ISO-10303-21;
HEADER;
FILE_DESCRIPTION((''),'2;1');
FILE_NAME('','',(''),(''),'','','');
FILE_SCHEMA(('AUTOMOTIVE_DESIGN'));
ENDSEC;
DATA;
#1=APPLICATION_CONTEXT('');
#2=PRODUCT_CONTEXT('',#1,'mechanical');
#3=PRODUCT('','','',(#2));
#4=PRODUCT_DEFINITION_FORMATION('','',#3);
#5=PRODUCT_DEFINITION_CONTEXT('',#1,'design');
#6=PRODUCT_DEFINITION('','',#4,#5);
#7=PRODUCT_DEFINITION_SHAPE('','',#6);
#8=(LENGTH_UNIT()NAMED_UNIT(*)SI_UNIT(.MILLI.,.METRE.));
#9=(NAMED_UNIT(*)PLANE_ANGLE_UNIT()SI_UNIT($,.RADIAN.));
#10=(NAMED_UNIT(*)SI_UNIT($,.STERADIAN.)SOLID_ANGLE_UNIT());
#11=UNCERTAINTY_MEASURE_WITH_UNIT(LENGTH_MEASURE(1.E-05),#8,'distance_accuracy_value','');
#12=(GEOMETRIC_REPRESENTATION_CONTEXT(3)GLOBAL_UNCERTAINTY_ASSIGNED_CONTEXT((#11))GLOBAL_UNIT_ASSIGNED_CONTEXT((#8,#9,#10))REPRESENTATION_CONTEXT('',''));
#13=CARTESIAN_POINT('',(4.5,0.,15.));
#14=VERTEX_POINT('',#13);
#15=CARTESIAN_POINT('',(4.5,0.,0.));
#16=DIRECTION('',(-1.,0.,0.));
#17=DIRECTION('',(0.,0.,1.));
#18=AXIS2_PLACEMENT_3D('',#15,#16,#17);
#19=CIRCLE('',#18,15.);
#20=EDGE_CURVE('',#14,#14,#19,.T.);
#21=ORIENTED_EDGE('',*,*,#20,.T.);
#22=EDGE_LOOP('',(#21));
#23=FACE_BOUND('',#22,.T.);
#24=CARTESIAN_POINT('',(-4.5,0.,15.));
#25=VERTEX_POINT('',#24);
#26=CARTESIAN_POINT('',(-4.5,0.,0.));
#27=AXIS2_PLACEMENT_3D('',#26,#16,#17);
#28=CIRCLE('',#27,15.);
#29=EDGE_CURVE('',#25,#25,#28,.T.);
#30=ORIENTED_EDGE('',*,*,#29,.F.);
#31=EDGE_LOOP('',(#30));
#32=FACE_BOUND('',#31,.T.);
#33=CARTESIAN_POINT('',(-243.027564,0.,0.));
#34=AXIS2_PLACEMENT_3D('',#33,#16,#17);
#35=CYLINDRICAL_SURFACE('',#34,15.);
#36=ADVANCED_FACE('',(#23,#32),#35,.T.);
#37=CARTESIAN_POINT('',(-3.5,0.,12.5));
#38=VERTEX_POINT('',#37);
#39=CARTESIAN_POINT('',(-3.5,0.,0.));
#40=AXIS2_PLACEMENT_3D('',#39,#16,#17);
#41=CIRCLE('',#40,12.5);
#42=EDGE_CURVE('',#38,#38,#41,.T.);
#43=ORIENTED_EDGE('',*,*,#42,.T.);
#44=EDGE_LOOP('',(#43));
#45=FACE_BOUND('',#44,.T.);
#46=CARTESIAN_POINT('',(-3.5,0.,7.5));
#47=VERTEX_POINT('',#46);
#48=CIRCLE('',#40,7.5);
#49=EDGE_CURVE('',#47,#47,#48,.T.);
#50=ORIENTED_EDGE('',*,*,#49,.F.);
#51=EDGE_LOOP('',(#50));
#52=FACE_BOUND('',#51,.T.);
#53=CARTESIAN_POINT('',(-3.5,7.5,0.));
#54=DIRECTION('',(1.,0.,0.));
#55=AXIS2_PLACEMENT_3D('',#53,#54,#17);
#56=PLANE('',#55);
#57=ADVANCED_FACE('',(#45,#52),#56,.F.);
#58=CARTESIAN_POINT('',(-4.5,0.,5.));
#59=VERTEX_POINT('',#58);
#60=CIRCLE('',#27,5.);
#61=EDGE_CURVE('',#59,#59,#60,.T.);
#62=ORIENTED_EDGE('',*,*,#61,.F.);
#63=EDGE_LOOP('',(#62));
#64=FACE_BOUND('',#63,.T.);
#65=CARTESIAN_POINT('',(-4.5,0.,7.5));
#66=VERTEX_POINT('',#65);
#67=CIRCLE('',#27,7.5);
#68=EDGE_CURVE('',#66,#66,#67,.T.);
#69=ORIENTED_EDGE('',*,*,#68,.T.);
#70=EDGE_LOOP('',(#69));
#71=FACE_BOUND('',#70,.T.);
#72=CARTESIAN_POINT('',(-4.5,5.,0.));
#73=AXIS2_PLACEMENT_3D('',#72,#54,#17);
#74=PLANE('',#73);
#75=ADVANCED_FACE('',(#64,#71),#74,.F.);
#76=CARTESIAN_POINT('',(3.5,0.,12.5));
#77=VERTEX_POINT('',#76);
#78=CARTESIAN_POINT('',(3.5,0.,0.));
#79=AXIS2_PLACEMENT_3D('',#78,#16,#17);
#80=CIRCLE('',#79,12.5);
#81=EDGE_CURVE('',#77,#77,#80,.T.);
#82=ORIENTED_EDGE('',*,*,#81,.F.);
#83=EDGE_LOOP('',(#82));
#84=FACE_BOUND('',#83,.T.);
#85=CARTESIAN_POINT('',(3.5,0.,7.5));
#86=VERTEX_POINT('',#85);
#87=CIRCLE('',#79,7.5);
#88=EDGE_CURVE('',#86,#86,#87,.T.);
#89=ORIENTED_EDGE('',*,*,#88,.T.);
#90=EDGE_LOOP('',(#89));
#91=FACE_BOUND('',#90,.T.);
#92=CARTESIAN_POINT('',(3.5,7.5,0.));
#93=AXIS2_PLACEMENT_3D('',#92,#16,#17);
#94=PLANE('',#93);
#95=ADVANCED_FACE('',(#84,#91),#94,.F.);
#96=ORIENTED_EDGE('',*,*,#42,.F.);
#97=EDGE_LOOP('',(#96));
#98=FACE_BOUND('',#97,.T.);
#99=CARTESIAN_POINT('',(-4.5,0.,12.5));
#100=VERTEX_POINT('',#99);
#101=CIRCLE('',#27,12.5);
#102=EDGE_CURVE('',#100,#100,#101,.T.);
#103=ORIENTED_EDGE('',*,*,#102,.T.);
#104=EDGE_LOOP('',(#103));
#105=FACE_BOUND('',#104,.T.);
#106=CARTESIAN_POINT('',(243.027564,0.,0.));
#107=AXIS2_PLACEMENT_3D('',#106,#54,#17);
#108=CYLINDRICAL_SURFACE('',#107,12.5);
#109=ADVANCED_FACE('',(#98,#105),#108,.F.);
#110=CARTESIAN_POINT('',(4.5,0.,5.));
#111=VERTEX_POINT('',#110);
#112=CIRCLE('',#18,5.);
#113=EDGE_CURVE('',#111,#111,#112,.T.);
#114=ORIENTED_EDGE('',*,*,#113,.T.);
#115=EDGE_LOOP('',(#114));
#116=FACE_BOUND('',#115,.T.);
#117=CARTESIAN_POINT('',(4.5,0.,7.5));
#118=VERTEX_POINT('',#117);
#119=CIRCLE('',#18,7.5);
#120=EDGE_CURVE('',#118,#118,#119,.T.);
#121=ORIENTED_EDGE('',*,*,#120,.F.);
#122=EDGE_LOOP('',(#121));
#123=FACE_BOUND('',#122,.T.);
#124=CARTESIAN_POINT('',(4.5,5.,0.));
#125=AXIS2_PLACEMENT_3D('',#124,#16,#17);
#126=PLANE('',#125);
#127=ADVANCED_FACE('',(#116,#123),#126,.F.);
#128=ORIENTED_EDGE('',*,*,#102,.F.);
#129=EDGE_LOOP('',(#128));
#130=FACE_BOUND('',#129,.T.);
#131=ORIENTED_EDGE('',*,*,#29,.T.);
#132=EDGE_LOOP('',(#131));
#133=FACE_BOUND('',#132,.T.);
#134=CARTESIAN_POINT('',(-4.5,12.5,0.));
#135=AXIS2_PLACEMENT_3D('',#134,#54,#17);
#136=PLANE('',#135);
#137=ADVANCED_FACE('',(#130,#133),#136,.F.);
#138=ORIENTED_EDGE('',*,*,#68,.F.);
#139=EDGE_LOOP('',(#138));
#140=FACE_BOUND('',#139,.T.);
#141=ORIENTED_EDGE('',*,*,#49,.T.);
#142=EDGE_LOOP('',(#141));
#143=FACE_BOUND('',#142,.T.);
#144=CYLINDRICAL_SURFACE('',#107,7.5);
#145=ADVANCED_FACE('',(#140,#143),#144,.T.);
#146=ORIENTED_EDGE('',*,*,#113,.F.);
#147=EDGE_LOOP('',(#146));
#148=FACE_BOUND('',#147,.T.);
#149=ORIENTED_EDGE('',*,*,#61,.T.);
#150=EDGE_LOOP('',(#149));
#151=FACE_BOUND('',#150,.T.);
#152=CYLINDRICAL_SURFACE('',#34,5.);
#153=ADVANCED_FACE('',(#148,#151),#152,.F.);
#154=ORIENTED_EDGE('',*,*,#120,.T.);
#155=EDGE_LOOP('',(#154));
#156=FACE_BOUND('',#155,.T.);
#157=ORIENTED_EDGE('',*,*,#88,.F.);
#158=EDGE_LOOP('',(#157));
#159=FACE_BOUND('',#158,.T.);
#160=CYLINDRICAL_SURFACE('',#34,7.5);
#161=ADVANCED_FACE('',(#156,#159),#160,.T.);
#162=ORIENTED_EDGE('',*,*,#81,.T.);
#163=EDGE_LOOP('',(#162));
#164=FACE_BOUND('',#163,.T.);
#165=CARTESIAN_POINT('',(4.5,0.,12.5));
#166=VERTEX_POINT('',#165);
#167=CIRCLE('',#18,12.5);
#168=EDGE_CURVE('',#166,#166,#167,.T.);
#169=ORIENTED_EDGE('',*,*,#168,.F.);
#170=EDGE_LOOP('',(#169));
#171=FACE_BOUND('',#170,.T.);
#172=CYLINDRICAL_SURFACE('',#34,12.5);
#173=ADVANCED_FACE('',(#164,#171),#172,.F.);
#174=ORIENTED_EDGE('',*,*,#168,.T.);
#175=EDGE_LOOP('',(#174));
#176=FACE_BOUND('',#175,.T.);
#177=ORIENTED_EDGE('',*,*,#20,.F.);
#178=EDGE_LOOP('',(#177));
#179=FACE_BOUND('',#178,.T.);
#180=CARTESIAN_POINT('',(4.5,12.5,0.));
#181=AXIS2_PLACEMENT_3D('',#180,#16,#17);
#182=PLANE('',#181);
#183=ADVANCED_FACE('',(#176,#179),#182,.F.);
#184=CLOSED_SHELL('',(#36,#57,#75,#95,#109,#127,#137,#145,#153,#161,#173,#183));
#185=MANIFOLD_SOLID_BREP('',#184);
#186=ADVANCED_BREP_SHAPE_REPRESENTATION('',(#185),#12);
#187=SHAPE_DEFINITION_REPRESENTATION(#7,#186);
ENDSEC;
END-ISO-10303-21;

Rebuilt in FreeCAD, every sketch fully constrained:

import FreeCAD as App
import Part
import Sketcher
from FreeCAD import Vector

doc = App.newDocument("Part")
body = doc.addObject("PartDesign::Body", "Body")

sketch1 = doc.addObject("Sketcher::SketchObject", "Sketch")
body.addObject(sketch1)
sketch1.AttachmentSupport = (doc.XY_Plane, [""])
sketch1.MapMode = "FlatFace"
sketch1.addGeometry([
    Part.LineSegment(Vector(0, 5, 0), Vector(4.5, 5, 0)),
    Part.LineSegment(Vector(4.5, 5, 0), Vector(4.5, 7.5, 0)),
    Part.LineSegment(Vector(4.5, 7.5, 0), Vector(3.5, 7.5, 0)),
    Part.LineSegment(Vector(3.5, 7.5, 0), Vector(3.5, 12.5, 0)),
    Part.LineSegment(Vector(3.5, 12.5, 0), Vector(4.5, 12.5, 0)),
    Part.LineSegment(Vector(4.5, 12.5, 0), Vector(4.5, 15, 0)),
    Part.LineSegment(Vector(4.5, 15, 0), Vector(0, 15, 0)),
    Part.LineSegment(Vector(0, 15, 0), Vector(0, 5, 0)),
], False)
sketch1.addConstraint([
    Sketcher.Constraint("Coincident", 0, 2, 1, 1),
    Sketcher.Constraint("Coincident", 1, 2, 2, 1),
    Sketcher.Constraint("Coincident", 2, 2, 3, 1),
    Sketcher.Constraint("Coincident", 3, 2, 4, 1),
    Sketcher.Constraint("Coincident", 4, 2, 5, 1),
    Sketcher.Constraint("Coincident", 5, 2, 6, 1),
    Sketcher.Constraint("Coincident", 6, 2, 7, 1),
    Sketcher.Constraint("Coincident", 7, 2, 0, 1),
    Sketcher.Constraint("Horizontal", 0),
    Sketcher.Constraint("Vertical", 1),
    Sketcher.Constraint("Horizontal", 2),
    Sketcher.Constraint("Vertical", 3),
    Sketcher.Constraint("Horizontal", 4),
    Sketcher.Constraint("Vertical", 5),
    Sketcher.Constraint("Horizontal", 6),
    Sketcher.Constraint("Vertical", 7),
    Sketcher.Constraint("PointOnObject", 6, 2, -2),
    Sketcher.Constraint("Vertical", 1, 2, 4, 2),
    Sketcher.Constraint("Equal", 1, 5),
    Sketcher.Constraint("DistanceX", 2, 2, 2, 1, 1.0),
    Sketcher.Constraint("DistanceY", 3, 1, 3, 2, 5.0),
    Sketcher.Constraint("DistanceY", 7, 2, 7, 1, 10.0),
    Sketcher.Constraint("DistanceX", 0, 1, 0, 2, 4.5),
    Sketcher.Constraint("DistanceY", -1, 1, 0, 2, 5.0),
])
revolution = doc.addObject("PartDesign::Revolution", "Revolution")
body.addObject(revolution)
revolution.Profile = sketch1
revolution.ReferenceAxis = (sketch1, ["H_Axis"])
revolution.Angle = 360
doc.recompute()

mirrored = doc.addObject("PartDesign::Mirrored", "Mirrored")
body.addObject(mirrored)
mirrored.Originals = [revolution]
mirrored.MirrorPlane = (doc.YZ_Plane, [""])
body.Tip = mirrored

doc.recompute()
